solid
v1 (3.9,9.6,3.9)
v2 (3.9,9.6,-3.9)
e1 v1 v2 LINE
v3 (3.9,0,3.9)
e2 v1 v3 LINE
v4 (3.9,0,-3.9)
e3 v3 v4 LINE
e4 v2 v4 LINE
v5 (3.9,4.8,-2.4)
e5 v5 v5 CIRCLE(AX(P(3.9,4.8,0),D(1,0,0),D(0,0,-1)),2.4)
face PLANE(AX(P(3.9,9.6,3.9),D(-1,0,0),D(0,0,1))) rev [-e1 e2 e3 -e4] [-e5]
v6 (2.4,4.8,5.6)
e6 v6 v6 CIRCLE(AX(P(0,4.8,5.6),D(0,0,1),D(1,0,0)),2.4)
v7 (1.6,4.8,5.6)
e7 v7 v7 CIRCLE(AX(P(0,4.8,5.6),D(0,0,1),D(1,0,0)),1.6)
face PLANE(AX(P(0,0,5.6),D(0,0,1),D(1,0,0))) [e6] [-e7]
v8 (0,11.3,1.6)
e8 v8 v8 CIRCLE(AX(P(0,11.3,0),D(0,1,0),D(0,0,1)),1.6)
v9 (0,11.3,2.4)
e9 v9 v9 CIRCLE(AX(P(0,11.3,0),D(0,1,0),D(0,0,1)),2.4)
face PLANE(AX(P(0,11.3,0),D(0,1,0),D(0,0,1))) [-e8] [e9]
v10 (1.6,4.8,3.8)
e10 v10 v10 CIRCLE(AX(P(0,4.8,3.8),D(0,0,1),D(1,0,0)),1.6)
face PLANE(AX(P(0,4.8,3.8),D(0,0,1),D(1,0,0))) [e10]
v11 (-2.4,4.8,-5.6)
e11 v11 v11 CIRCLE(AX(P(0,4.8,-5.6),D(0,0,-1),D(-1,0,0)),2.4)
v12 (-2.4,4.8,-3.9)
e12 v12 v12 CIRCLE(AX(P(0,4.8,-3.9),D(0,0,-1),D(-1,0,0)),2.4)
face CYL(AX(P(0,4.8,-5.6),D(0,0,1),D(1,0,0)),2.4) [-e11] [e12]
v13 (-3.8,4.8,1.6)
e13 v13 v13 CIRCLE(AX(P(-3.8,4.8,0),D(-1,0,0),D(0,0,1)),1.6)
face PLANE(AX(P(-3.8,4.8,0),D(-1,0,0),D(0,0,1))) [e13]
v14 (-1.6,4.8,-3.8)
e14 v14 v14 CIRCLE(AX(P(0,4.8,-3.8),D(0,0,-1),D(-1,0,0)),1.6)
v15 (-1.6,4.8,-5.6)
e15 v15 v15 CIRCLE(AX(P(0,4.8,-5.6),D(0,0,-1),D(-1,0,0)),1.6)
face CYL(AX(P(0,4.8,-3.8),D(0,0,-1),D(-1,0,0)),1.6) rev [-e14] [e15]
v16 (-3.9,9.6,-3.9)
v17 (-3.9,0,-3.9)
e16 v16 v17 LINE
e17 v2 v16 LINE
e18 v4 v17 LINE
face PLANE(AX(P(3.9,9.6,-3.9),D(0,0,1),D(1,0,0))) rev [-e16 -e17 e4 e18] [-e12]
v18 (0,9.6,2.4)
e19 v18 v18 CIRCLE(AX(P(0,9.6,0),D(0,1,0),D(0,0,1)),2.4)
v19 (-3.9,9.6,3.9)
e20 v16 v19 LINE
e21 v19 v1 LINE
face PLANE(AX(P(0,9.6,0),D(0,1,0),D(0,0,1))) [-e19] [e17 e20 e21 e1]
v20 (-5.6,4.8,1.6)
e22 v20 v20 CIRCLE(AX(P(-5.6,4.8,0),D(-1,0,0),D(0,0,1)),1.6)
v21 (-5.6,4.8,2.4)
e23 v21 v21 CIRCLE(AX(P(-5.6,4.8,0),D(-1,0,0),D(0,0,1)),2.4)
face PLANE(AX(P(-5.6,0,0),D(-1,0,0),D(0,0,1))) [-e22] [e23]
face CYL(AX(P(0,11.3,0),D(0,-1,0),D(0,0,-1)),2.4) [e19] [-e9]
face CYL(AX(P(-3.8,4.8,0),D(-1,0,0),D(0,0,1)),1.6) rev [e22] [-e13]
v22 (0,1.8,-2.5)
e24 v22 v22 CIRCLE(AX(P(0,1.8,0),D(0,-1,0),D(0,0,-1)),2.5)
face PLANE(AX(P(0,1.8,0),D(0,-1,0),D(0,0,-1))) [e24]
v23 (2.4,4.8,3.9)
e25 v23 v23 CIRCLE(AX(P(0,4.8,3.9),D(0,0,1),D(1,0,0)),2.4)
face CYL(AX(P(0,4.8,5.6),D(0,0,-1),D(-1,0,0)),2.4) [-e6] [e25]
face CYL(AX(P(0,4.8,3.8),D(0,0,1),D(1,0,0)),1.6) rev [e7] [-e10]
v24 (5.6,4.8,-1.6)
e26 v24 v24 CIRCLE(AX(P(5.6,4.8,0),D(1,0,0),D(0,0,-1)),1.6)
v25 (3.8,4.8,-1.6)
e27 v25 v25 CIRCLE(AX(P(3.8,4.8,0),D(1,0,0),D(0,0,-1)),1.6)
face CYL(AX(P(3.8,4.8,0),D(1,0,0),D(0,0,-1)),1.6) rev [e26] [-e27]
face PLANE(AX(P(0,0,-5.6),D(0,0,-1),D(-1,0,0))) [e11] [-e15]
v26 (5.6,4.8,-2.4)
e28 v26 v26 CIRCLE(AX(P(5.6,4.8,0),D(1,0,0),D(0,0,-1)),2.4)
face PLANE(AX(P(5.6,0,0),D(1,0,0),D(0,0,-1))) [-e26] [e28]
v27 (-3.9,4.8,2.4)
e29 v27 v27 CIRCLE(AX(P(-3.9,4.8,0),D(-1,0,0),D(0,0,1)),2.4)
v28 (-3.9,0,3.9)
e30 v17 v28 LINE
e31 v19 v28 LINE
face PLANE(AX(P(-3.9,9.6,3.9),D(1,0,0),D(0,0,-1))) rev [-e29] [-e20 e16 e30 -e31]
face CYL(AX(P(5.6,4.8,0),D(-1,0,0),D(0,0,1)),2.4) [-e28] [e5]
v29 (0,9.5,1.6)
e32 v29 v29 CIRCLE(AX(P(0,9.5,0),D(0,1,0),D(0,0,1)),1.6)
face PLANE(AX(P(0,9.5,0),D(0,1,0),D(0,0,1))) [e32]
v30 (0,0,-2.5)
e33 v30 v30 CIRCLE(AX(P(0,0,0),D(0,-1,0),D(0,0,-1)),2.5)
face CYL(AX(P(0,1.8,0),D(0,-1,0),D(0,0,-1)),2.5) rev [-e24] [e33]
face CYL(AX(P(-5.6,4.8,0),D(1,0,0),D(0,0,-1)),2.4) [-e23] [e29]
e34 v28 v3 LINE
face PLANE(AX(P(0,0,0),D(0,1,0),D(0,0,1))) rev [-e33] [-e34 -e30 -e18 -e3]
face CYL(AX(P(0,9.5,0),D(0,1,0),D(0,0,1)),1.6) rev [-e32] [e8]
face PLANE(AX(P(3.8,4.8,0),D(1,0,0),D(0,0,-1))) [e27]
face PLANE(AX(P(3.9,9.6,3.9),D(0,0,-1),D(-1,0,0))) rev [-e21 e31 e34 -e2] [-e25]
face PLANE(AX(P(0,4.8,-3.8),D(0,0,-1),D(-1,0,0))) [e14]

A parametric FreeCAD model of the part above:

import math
import FreeCAD as App
import Part
import Sketcher
from FreeCAD import Vector


def add_polygon(sketch, points):
    """Adds a closed chain of lines whose ends are joined by coincident constraints."""
    first, n = sketch.GeometryCount, len(points)
    for a, b in zip(points, points[1:] + points[:1]):
        sketch.addGeometry(Part.LineSegment(App.Vector(*a, 0), App.Vector(*b, 0)), False)
    for i in range(n):
        sketch.addConstraint(Sketcher.Constraint("Coincident", first + i, 2, first + (i + 1) % n, 1))

doc = App.newDocument("Part")
body = doc.addObject("PartDesign::Body", "Body")

sketch1 = body.newObject("Sketcher::SketchObject", "Sketch")
sketch1.AttachmentSupport = (doc.getObject("XZ_Plane"), [""])
sketch1.MapMode = "FlatFace"
add_polygon(sketch1, [(-4, -4), (-4, 4), (4, 4), (4, -4)])
sketch1.addConstraint(Sketcher.Constraint("Vertical", 0))
sketch1.addConstraint(Sketcher.Constraint("Horizontal", 1))
sketch1.addConstraint(Sketcher.Constraint("Vertical", 2))
sketch1.addConstraint(Sketcher.Constraint("Horizontal", 3))
sketch1.addConstraint(Sketcher.Constraint("Symmetric", 0, 2, 2, 2, -1, 1))
sketch1.addConstraint(Sketcher.Constraint("Equal", 3, 0))
sketch1.addConstraint(Sketcher.Constraint("DistanceX", 1, 1, 1, 2, 7.8))
pad1 = body.newObject("PartDesign::Pad", "Pad")
pad1.Profile = sketch1
pad1.Length = 9.6
pad1.Reversed = True

sketch2 = body.newObject("Sketcher::SketchObject", "Sketch001")
sketch2.AttachmentSupport = (doc.getObject("XZ_Plane"), [""])
sketch2.MapMode = "FlatFace"
sketch2.AttachmentOffset = App.Placement(Vector(0, 0, -9.6), App.Rotation())
sketch2.addGeometry(Part.Circle(Vector(0, 0, 0), Vector(0, 0, 1), 2.4), False)
sketch2.addConstraint(Sketcher.Constraint("Coincident", 0, 3, -1, 1))
sketch2.addConstraint(Sketcher.Constraint("Diameter", 0, 4.8))
pad2 = body.newObject("PartDesign::Pad", "Pad001")
pad2.Profile = sketch2
pad2.Length = 1.7
pad2.Reversed = True

sketch3 = body.newObject("Sketcher::SketchObject", "Sketch002")
sketch3.AttachmentSupport = (doc.getObject("XY_Plane"), [""])
sketch3.MapMode = "FlatFace"
sketch3.AttachmentOffset = App.Placement(Vector(0, 0, 3.9), App.Rotation())
sketch3.addGeometry(Part.ArcOfCircle(Part.Circle(Vector(0, 4.8, 0), Vector(0, 0, 1), 2.4), math.radians(-129), math.radians(-51)), False)
sketch3.addGeometry(Part.ArcOfCircle(Part.Circle(Vector(0, 4.8, 0), Vector(0, 0, 1), 2.4), math.radians(-51), math.radians(0)), False)
sketch3.addGeometry(Part.ArcOfCircle(Part.Circle(Vector(0, 4.8, 0), Vector(0, 0, 1), 2.4), math.radians(0), math.radians(51)), False)
sketch3.addGeometry(Part.ArcOfCircle(Part.Circle(Vector(0, 4.8, 0), Vector(0, 0, 1), 2.4), math.radians(51), math.radians(129)), False)
sketch3.addGeometry(Part.ArcOfCircle(Part.Circle(Vector(0, 4.8, 0), Vector(0, 0, 1), 2.4), math.radians(129), math.radians(231)), False)
sketch3.addConstraint(Sketcher.Constraint("Tangent", 0, 2, 1, 1))
sketch3.addConstraint(Sketcher.Constraint("Tangent", 1, 2, 2, 1))
sketch3.addConstraint(Sketcher.Constraint("Tangent", 2, 2, 3, 1))
sketch3.addConstraint(Sketcher.Constraint("Tangent", 3, 2, 4, 1))
sketch3.addConstraint(Sketcher.Constraint("Tangent", 4, 2, 0, 1))
sketch3.addConstraint(Sketcher.Constraint("Coincident", 2, 3, 0, 3))
sketch3.addConstraint(Sketcher.Constraint("Symmetric", 2, 2, 3, 2, -2))
sketch3.addConstraint(Sketcher.Constraint("Horizontal", 4, 3, 1, 2))
sketch3.addConstraint(Sketcher.Constraint("Horizontal", 0, 2, 4, 2))
sketch3.addConstraint(Sketcher.Constraint("Vertical", 0, 2, 2, 2))
sketch3.addConstraint(Sketcher.Constraint("Radius", 0, 2.4))
sketch3.addConstraint(Sketcher.Constraint("DistanceY", -1, 1, 0, 3, 4.8))
sketch3.addConstraint(Sketcher.Constraint("DistanceX", -1, 1, 0, 2, 1.513422))
pad3 = body.newObject("PartDesign::Pad", "Pad002")
pad3.Profile = sketch3
pad3.Length = 1.7

sketch4 = body.newObject("Sketcher::SketchObject", "Sketch003")
sketch4.AttachmentSupport = (doc.getObject("YZ_Plane"), [""])
sketch4.MapMode = "FlatFace"
sketch4.AttachmentOffset = App.Placement(Vector(0, 0, 3.9), App.Rotation())
sketch4.addGeometry(Part.ArcOfCircle(Part.Circle(Vector(4.8, 0, 0), Vector(0, 0, 1), 2.4), math.radians(141), math.radians(219)), False)
sketch4.addGeometry(Part.ArcOfCircle(Part.Circle(Vector(4.8, 0, 0), Vector(0, 0, 1), 2.4), math.radians(-141), math.radians(-90)), False)
sketch4.addGeometry(Part.ArcOfCircle(Part.Circle(Vector(4.8, 0, 0), Vector(0, 0, 1), 2.4), math.radians(-90), math.radians(-39)), False)
sketch4.addGeometry(Part.ArcOfCircle(Part.Circle(Vector(4.8, 0, 0), Vector(0, 0, 1), 2.4), math.radians(-39), math.radians(39)), False)
sketch4.addGeometry(Part.ArcOfCircle(Part.Circle(Vector(4.8, 0, 0), Vector(0, 0, 1), 2.4), math.radians(39), math.radians(141)), False)
sketch4.addConstraint(Sketcher.Constraint("Tangent", 0, 2, 1, 1))
sketch4.addConstraint(Sketcher.Constraint("Tangent", 1, 2, 2, 1))
sketch4.addConstraint(Sketcher.Constraint("Tangent", 2, 2, 3, 1))
sketch4.addConstraint(Sketcher.Constraint("Tangent", 3, 2, 4, 1))
sketch4.addConstraint(Sketcher.Constraint("Tangent", 4, 2, 0, 1))
sketch4.addConstraint(Sketcher.Constraint("Coincident", 2, 3, 0, 3))
sketch4.addConstraint(Sketcher.Constraint("Symmetric", 2, 2, 3, 2, -1))
sketch4.addConstraint(Sketcher.Constraint("Horizontal", 0, 2, 2, 2))
sketch4.addConstraint(Sketcher.Constraint("Horizontal", 3, 2, 4, 2))
sketch4.addConstraint(Sketcher.Constraint("Vertical", 4, 3, 1, 2))
sketch4.addConstraint(Sketcher.Constraint("Radius", 0, 2.4))
sketch4.addConstraint(Sketcher.Constraint("DistanceX", -1, 1, 0, 3, 4.8))
sketch4.addConstraint(Sketcher.Constraint("DistanceX", -1, 1, 0, 2, 2.937326))
pad4 = body.newObject("PartDesign::Pad", "Pad003")
pad4.Profile = sketch4
pad4.Length = 1.7

sketch5 = body.newObject("Sketcher::SketchObject", "Sketch004")
sketch5.AttachmentSupport = (doc.getObject("XY_Plane"), [""])
sketch5.MapMode = "FlatFace"
sketch5.AttachmentOffset = App.Placement(Vector(0, 0, -5.6), App.Rotation())
sketch5.addGeometry(Part.ArcOfCircle(Part.Circle(Vector(0, 4.8, 0), Vector(0, 0, 1), 2.4), math.radians(-129), math.radians(-51)), False)
sketch5.addGeometry(Part.ArcOfCircle(Part.Circle(Vector(0, 4.8, 0), Vector(0, 0, 1), 2.4), math.radians(180), math.radians(231)), False)
sketch5.addGeometry(Part.ArcOfCircle(Part.Circle(Vector(0, 4.8, 0), Vector(0, 0, 1), 2.4), math.radians(129), math.radians(180)), False)
sketch5.addGeometry(Part.ArcOfCircle(Part.Circle(Vector(0, 4.8, 0), Vector(0, 0, 1), 2.4), math.radians(51), math.radians(129)), False)
sketch5.addGeometry(Part.ArcOfCircle(Part.Circle(Vector(0, 4.8, 0), Vector(0, 0, 1), 2.4), math.radians(-51), math.radians(51)), False)
sketch5.addConstraint(Sketcher.Constraint("Tangent", 0, 1, 1, 2))
sketch5.addConstraint(Sketcher.Constraint("Tangent", 1, 1, 2, 2))
sketch5.addConstraint(Sketcher.Constraint("Tangent", 2, 1, 3, 2))
sketch5.addConstraint(Sketcher.Constraint("Tangent", 3, 1, 4, 2))
sketch5.addConstraint(Sketcher.Constraint("Tangent", 4, 1, 0, 2))
sketch5.addConstraint(Sketcher.Constraint("Coincident", 2, 3, 0, 3))
sketch5.addConstraint(Sketcher.Constraint("Symmetric", 2, 1, 3, 1, -2))
sketch5.addConstraint(Sketcher.Constraint("Horizontal", 4, 3, 1, 1))
sketch5.addConstraint(Sketcher.Constraint("Horizontal", 0, 1, 4, 1))
sketch5.addConstraint(Sketcher.Constraint("Vertical", 0, 1, 2, 1))
sketch5.addConstraint(Sketcher.Constraint("Radius", 0, 2.4))
sketch5.addConstraint(Sketcher.Constraint("DistanceY", -1, 1, 0, 3, 4.8))
sketch5.addConstraint(Sketcher.Constraint("DistanceX", 0, 1, -1, 1, 1.513422))
pad5 = body.newObject("PartDesign::Pad", "Pad004")
pad5.Profile = sketch5
pad5.Length = 1.7

sketch6 = body.newObject("Sketcher::SketchObject", "Sketch005")
sketch6.AttachmentSupport = (doc.getObject("YZ_Plane"), [""])
sketch6.MapMode = "FlatFace"
sketch6.AttachmentOffset = App.Placement(Vector(0, 0, -5.6), App.Rotation())
sketch6.addGeometry(Part.ArcOfCircle(Part.Circle(Vector(4.8, 0, 0), Vector(0, 0, 1), 2.4), math.radians(141), math.radians(219)), False)
sketch6.addGeometry(Part.ArcOfCircle(Part.Circle(Vector(4.8, 0, 0), Vector(0, 0, 1), 2.4), math.radians(90), math.radians(141)), False)
sketch6.addGeometry(Part.ArcOfCircle(Part.Circle(Vector(4.8, 0, 0), Vector(0, 0, 1), 2.4), math.radians(39), math.radians(90)), False)
sketch6.addGeometry(Part.ArcOfCircle(Part.Circle(Vector(4.8, 0, 0), Vector(0, 0, 1), 2.4), math.radians(-39), math.radians(39)), False)
sketch6.addGeometry(Part.ArcOfCircle(Part.Circle(Vector(4.8, 0, 0), Vector(0, 0, 1), 2.4), math.radians(-141), math.radians(-39)), False)
sketch6.addConstraint(Sketcher.Constraint("Tangent", 0, 1, 1, 2))
sketch6.addConstraint(Sketcher.Constraint("Tangent", 1, 1, 2, 2))
sketch6.addConstraint(Sketcher.Constraint("Tangent", 2, 1, 3, 2))
sketch6.addConstraint(Sketcher.Constraint("Tangent", 3, 1, 4, 2))
sketch6.addConstraint(Sketcher.Constraint("Tangent", 4, 1, 0, 2))
sketch6.addConstraint(Sketcher.Constraint("Coincident", 2, 3, 0, 3))
sketch6.addConstraint(Sketcher.Constraint("Symmetric", 2, 1, 3, 1, -1))
sketch6.addConstraint(Sketcher.Constraint("Horizontal", 0, 1, 2, 1))
sketch6.addConstraint(Sketcher.Constraint("Horizontal", 3, 1, 4, 1))
sketch6.addConstraint(Sketcher.Constraint("Vertical", 4, 3, 1, 1))
sketch6.addConstraint(Sketcher.Constraint("Radius", 0, 2.4))
sketch6.addConstraint(Sketcher.Constraint("DistanceX", -1, 1, 0, 3, 4.8))
sketch6.addConstraint(Sketcher.Constraint("DistanceX", -1, 1, 0, 1, 2.937326))
pad6 = body.newObject("PartDesign::Pad", "Pad005")
pad6.Profile = sketch6
pad6.Length = 1.7

sketch7 = body.newObject("Sketcher::SketchObject", "Sketch006")
sketch7.AttachmentSupport = (doc.getObject("XZ_Plane"), [""])
sketch7.MapMode = "FlatFace"
sketch7.addGeometry(Part.ArcOfCircle(Part.Circle(Vector(0, 0, 0), Vector(0, 0, 1), 2.5), math.radians(-135), math.radians(-45)), False)
sketch7.addGeometry(Part.ArcOfCircle(Part.Circle(Vector(0, 0, 0), Vector(0, 0, 1), 2.5), math.radians(-45), math.radians(0)), False)
sketch7.addGeometry(Part.ArcOfCircle(Part.Circle(Vector(0, 0, 0), Vector(0, 0, 1), 2.5), math.radians(0), math.radians(45)), False)
sketch7.addGeometry(Part.ArcOfCircle(Part.Circle(Vector(0, 0, 0), Vector(0, 0, 1), 2.5), math.radians(45), math.radians(135)), False)
sketch7.addGeometry(Part.ArcOfCircle(Part.Circle(Vector(0, 0, 0), Vector(0, 0, 1), 2.5), math.radians(135), math.radians(225)), False)
sketch7.addConstraint(Sketcher.Constraint("Tangent", 0, 2, 1, 1))
sketch7.addConstraint(Sketcher.Constraint("Tangent", 1, 2, 2, 1))
sketch7.addConstraint(Sketcher.Constraint("Tangent", 2, 2, 3, 1))
sketch7.addConstraint(Sketcher.Constraint("Tangent", 3, 2, 4, 1))
sketch7.addConstraint(Sketcher.Constraint("Tangent", 4, 2, 0, 1))
sketch7.addConstraint(Sketcher.Constraint("Coincident", 0, 3, -1, 1))
sketch7.addConstraint(Sketcher.Constraint("Coincident", 2, 3, -1, 1))
sketch7.addConstraint(Sketcher.Constraint("PointOnObject", 1, 2, -1))
sketch7.addConstraint(Sketcher.Constraint("Horizontal", 2, 2, 3, 2))
sketch7.addConstraint(Sketcher.Constraint("Horizontal", 0, 2, 4, 2))
sketch7.addConstraint(Sketcher.Constraint("Vertical", 0, 2, 2, 2))
sketch7.addConstraint(Sketcher.Constraint("Radius", 0, 2.5))
sketch7.addConstraint(Sketcher.Constraint("DistanceX", -1, 1, 0, 2, 1.767767))
pocket1 = body.newObject("PartDesign::Pocket", "Pocket")
pocket1.Profile = sketch7
pocket1.Length = 1.8

sketch8 = body.newObject("Sketcher::SketchObject", "Sketch007")
sketch8.AttachmentSupport = (doc.getObject("XY_Plane"), [""])
sketch8.MapMode = "FlatFace"
sketch8.AttachmentOffset = App.Placement(Vector(0, 0, 5.6), App.Rotation())
sketch8.addGeometry(Part.Circle(Vector(0, 4.8, 0), Vector(0, 0, 1), 1.6), False)
sketch8.addConstraint(Sketcher.Constraint("PointOnObject", 0, 3, -2))
sketch8.addConstraint(Sketcher.Constraint("Diameter", 0, 3.2))
sketch8.addConstraint(Sketcher.Constraint("DistanceY", -1, 1, 0, 3, 4.8))
pocket2 = body.newObject("PartDesign::Pocket", "Pocket001")
pocket2.Profile = sketch8
pocket2.Length = 1.8

sketch9 = body.newObject("Sketcher::SketchObject", "Sketch008")
sketch9.AttachmentSupport = (doc.getObject("YZ_Plane"), [""])
sketch9.MapMode = "FlatFace"
sketch9.AttachmentOffset = App.Placement(Vector(0, 0, -5.6), App.Rotation())
sketch9.addGeometry(Part.Circle(Vector(4.8, 0, 0), Vector(0, 0, 1), 1.6), False)
sketch9.addConstraint(Sketcher.Constraint("PointOnObject", 0, 3, -1))
sketch9.addConstraint(Sketcher.Constraint("Diameter", 0, 3.2))
sketch9.addConstraint(Sketcher.Constraint("DistanceX", -1, 1, 0, 3, 4.8))
pocket3 = body.newObject("PartDesign::Pocket", "Pocket002")
pocket3.Profile = sketch9
pocket3.Length = 1.8
pocket3.Reversed = True

sketch10 = body.newObject("Sketcher::SketchObject", "Sketch009")
sketch10.AttachmentSupport = (doc.getObject("XY_Plane"), [""])
sketch10.MapMode = "FlatFace"
sketch10.AttachmentOffset = App.Placement(Vector(0, 0, -3.8), App.Rotation())
sketch10.addGeometry(Part.Circle(Vector(0, 4.8, 0), Vector(0, 0, 1), 1.6), False)
sketch10.addConstraint(Sketcher.Constraint("PointOnObject", 0, 3, -2))
sketch10.addConstraint(Sketcher.Constraint("Diameter", 0, 3.2))
sketch10.addConstraint(Sketcher.Constraint("DistanceY", -1, 1, 0, 3, 4.8))
pocket4 = body.newObject("PartDesign::Pocket", "Pocket003")
pocket4.Profile = sketch10
pocket4.Length = 1.8

sketch11 = body.newObject("Sketcher::SketchObject", "Sketch010")
sketch11.AttachmentSupport = (doc.getObject("YZ_Plane"), [""])
sketch11.MapMode = "FlatFace"
sketch11.AttachmentOffset = App.Placement(Vector(0, 0, 3.8), App.Rotation())
sketch11.addGeometry(Part.Circle(Vector(4.8, 0, 0), Vector(0, 0, 1), 1.6), False)
sketch11.addConstraint(Sketcher.Constraint("PointOnObject", 0, 3, -1))
sketch11.addConstraint(Sketcher.Constraint("Diameter", 0, 3.2))
sketch11.addConstraint(Sketcher.Constraint("DistanceX", -1, 1, 0, 3, 4.8))
pocket5 = body.newObject("PartDesign::Pocket", "Pocket004")
pocket5.Profile = sketch11
pocket5.Length = 1.8
pocket5.Reversed = True

sketch12 = body.newObject("Sketcher::SketchObject", "Sketch011")
sketch12.AttachmentSupport = (doc.getObject("XZ_Plane"), [""])
sketch12.MapMode = "FlatFace"
sketch12.AttachmentOffset = App.Placement(Vector(0, 0, -11.3), App.Rotation())
sketch12.addGeometry(Part.Circle(Vector(0, 0, 0), Vector(0, 0, 1), 1.6), False)
sketch12.addConstraint(Sketcher.Constraint("Coincident", 0, 3, -1, 1))
sketch12.addConstraint(Sketcher.Constraint("Diameter", 0, 3.2))
pocket6 = body.newObject("PartDesign::Pocket", "Pocket005")
pocket6.Profile = sketch12
pocket6.Length = 1.8
pocket6.Reversed = True

doc.recompute()
